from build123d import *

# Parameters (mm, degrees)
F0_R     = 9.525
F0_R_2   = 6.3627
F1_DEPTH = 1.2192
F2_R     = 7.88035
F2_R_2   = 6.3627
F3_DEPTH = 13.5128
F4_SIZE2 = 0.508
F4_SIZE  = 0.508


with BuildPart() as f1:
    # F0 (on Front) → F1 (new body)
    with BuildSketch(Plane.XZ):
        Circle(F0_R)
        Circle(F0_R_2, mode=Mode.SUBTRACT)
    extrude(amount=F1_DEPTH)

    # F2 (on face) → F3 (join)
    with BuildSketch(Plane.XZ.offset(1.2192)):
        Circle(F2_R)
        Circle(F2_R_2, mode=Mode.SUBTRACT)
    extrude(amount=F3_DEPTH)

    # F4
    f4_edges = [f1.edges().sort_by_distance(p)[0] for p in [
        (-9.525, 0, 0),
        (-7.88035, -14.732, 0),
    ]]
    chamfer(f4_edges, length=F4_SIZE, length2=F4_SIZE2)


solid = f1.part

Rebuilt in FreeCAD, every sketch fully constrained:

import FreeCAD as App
import Part
import Sketcher
Q = App.Units.Quantity


def edges_at(feature, points):
    """Names of the edges that pass closest to the given points."""
    edges = feature.Shape.Edges
    near = lambda p: min(range(len(edges)), key=lambda i: edges[i].distToShape(Part.Vertex(*p))[0])
    return sorted({f"Edge{near(p) + 1}" for p in points})

doc = App.newDocument("Part")
body = doc.addObject("PartDesign::Body", "Body")

sketch1 = body.newObject("Sketcher::SketchObject", "Sketch")
sketch1.AttachmentSupport = (doc.getObject("XZ_Plane"), [""])
sketch1.MapMode = "FlatFace"
sketch1.addGeometry([
    Part.Circle(App.Vector(0, 0, 0), App.Vector(0, 0, 1), 9.525),
    Part.Circle(App.Vector(0, 0, 0), App.Vector(0, 0, 1), 6.3627),
], False)
sketch1.addConstraint([
    Sketcher.Constraint("Coincident", 0, 3, -1, 1),
    Sketcher.Constraint("Coincident", 1, 3, -1, 1),
    Sketcher.Constraint("Diameter", 0, Q("0.75 in")),
    Sketcher.Constraint("Diameter", 1, Q("0.501 in")),
])
pad1 = body.newObject("PartDesign::Pad", "Pad")
pad1.Profile = sketch1
pad1.Length = Q("0.048 in")

sketch2 = body.newObject("Sketcher::SketchObject", "Sketch001")
sketch2.AttachmentSupport = (doc.getObject("XZ_Plane"), [""])
sketch2.MapMode = "FlatFace"
sketch2.AttachmentOffset = App.Placement(App.Vector(0, 0, 0.048 * 25.4), App.Rotation())
sketch2.addGeometry([
    Part.Circle(App.Vector(0, 0, 0), App.Vector(0, 0, 1), 7.88035),
    Part.Circle(App.Vector(0, 0, 0), App.Vector(0, 0, 1), 6.3627),
], False)
sketch2.addConstraint([
    Sketcher.Constraint("Coincident", 0, 3, -1, 1),
    Sketcher.Constraint("Coincident", 1, 3, -1, 1),
    Sketcher.Constraint("Diameter", 1, Q("0.501 in")),
    Sketcher.Constraint("Diameter", 0, Q("0.6205 in")),
])
pad2 = body.newObject("PartDesign::Pad", "Pad001")
pad2.Profile = sketch2
pad2.Length = Q("0.532 in")
doc.recompute()

chamfer = body.newObject("PartDesign::Chamfer", "Chamfer")
chamfer.Base = (pad2, edges_at(pad2, [(-9.525, 0, 0), (-7.88, -14.732, 0)]))
chamfer.ChamferType = "Two distances"
chamfer.Size = Q("0.02 in")
chamfer.Size2 = Q("0.02 in")

doc.recompute()
